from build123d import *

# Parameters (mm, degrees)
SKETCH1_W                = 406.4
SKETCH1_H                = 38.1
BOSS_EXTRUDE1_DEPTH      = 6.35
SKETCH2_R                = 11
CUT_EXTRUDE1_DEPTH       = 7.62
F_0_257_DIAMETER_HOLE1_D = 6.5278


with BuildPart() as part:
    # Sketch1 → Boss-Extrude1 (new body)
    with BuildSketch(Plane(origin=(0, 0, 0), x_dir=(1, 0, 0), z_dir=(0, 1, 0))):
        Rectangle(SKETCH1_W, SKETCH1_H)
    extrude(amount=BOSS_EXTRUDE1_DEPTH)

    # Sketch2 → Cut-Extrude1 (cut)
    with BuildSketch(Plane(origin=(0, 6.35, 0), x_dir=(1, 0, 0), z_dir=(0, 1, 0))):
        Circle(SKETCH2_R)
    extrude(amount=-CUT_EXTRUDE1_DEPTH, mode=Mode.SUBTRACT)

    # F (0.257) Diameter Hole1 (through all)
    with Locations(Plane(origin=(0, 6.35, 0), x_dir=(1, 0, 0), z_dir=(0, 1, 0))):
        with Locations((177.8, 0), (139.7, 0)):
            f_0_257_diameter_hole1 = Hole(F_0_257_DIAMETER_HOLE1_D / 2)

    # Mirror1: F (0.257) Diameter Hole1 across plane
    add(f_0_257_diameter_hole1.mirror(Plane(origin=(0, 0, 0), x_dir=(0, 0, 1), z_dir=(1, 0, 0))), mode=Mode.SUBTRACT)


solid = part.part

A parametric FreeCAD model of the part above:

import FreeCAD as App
import Part
import Sketcher

V = App.Vector
Q = App.Units.Quantity


def add_polygon(sketch, points):
    """Adds a closed chain of lines whose ends are joined by coincident constraints."""
    first, n = sketch.GeometryCount, len(points)
    for a, b in zip(points, points[1:] + points[:1]):
        sketch.addGeometry(Part.LineSegment(App.Vector(*a, 0), App.Vector(*b, 0)), False)
    for i in range(n):
        sketch.addConstraint(Sketcher.Constraint("Coincident", first + i, 2, first + (i + 1) % n, 1))

doc = App.newDocument("Part")
body = doc.addObject("PartDesign::Body", "Body")

# Sketch on XZ plane
sketch1 = doc.addObject("Sketcher::SketchObject", "Sketch")
body.addObject(sketch1)
sketch1.AttachmentSupport = (doc.XZ_Plane, [""])
sketch1.MapMode = "FlatFace"
add_polygon(sketch1, [(-203, -19), (-203, 19), (203, 19), (203, -19)])  # lines 0-3
sketch1.addConstraint([
    Sketcher.Constraint("Vertical", 0),
    Sketcher.Constraint("Horizontal", 1),
    Sketcher.Constraint("Vertical", 2),
    Sketcher.Constraint("Horizontal", 3),
    Sketcher.Constraint("Symmetric", 0, 2, 2, 2, -1, 1),
    Sketcher.Constraint("DistanceX", 1, 1, 1, 2, Q("16 in")),
    Sketcher.Constraint("DistanceY", 0, 1, 0, 2, Q("1.5 in")),
])
pad1 = doc.addObject("PartDesign::Pad", "Pad")
body.addObject(pad1)
pad1.Profile = sketch1
pad1.Length = Q("0.25 in")
pad1.Reversed = True

# Sketch on XZ plane
sketch2 = doc.addObject("Sketcher::SketchObject", "Sketch001")
body.addObject(sketch2)
sketch2.AttachmentSupport = (doc.XZ_Plane, [""])
sketch2.MapMode = "FlatFace"
sketch2.AttachmentOffset = App.Placement(V(0, 0, -0.25 * 25.4), App.Rotation())
sketch2.addGeometry(Part.Circle(V(0, 0, 0), V(0, 0, 1), 11), False)
sketch2.addConstraint([
    Sketcher.Constraint("Coincident", 0, 3, -1, 1),
    Sketcher.Constraint("Diameter", 0, 22.0),
])
pocket1 = doc.addObject("PartDesign::Pocket", "Pocket")
body.addObject(pocket1)
pocket1.Profile = sketch2
pocket1.Length = Q("0.3 in")
pocket1.Reversed = True

# Sketch on XZ plane
sketch3 = doc.addObject("Sketcher::SketchObject", "Sketch002")
body.addObject(sketch3)
sketch3.AttachmentSupport = (doc.XZ_Plane, [""])
sketch3.MapMode = "FlatFace"
sketch3.AttachmentOffset = App.Placement(V(0, 0, -0.25 * 25.4), App.Rotation())
sketch3.addGeometry([
    Part.Circle(V(177.8, 0, 0), V(0, 0, 1), 3.3),
    Part.Circle(V(139.7, 0, 0), V(0, 0, 1), 3.3),
], False)
sketch3.addConstraint([
    Sketcher.Constraint("Equal", 0, 1),
    Sketcher.Constraint("PointOnObject", 0, 3, -1),
    Sketcher.Constraint("PointOnObject", 1, 3, -1),
    Sketcher.Constraint("Diameter", 0, Q("0.257 in")),
    Sketcher.Constraint("DistanceX", -1, 1, 0, 3, Q("7 in")),
    Sketcher.Constraint("DistanceX", -1, 1, 1, 3, Q("5.5 in")),
])
doc.recompute()
hole = doc.addObject("PartDesign::Hole", "Hole")
body.addObject(hole)
hole.Profile = sketch3
hole.ThreadType = "None"
hole.Diameter = Q("0.257 in")
hole.DepthType = "ThroughAll"
hole.Reversed = True
doc.recompute()

mirrored = doc.addObject("PartDesign::Mirrored", "Mirrored")
body.addObject(mirrored)
mirrored.Originals = [hole]
mirrored.MirrorPlane = (doc.YZ_Plane, [""])
body.Tip = mirrored

doc.recompute()
